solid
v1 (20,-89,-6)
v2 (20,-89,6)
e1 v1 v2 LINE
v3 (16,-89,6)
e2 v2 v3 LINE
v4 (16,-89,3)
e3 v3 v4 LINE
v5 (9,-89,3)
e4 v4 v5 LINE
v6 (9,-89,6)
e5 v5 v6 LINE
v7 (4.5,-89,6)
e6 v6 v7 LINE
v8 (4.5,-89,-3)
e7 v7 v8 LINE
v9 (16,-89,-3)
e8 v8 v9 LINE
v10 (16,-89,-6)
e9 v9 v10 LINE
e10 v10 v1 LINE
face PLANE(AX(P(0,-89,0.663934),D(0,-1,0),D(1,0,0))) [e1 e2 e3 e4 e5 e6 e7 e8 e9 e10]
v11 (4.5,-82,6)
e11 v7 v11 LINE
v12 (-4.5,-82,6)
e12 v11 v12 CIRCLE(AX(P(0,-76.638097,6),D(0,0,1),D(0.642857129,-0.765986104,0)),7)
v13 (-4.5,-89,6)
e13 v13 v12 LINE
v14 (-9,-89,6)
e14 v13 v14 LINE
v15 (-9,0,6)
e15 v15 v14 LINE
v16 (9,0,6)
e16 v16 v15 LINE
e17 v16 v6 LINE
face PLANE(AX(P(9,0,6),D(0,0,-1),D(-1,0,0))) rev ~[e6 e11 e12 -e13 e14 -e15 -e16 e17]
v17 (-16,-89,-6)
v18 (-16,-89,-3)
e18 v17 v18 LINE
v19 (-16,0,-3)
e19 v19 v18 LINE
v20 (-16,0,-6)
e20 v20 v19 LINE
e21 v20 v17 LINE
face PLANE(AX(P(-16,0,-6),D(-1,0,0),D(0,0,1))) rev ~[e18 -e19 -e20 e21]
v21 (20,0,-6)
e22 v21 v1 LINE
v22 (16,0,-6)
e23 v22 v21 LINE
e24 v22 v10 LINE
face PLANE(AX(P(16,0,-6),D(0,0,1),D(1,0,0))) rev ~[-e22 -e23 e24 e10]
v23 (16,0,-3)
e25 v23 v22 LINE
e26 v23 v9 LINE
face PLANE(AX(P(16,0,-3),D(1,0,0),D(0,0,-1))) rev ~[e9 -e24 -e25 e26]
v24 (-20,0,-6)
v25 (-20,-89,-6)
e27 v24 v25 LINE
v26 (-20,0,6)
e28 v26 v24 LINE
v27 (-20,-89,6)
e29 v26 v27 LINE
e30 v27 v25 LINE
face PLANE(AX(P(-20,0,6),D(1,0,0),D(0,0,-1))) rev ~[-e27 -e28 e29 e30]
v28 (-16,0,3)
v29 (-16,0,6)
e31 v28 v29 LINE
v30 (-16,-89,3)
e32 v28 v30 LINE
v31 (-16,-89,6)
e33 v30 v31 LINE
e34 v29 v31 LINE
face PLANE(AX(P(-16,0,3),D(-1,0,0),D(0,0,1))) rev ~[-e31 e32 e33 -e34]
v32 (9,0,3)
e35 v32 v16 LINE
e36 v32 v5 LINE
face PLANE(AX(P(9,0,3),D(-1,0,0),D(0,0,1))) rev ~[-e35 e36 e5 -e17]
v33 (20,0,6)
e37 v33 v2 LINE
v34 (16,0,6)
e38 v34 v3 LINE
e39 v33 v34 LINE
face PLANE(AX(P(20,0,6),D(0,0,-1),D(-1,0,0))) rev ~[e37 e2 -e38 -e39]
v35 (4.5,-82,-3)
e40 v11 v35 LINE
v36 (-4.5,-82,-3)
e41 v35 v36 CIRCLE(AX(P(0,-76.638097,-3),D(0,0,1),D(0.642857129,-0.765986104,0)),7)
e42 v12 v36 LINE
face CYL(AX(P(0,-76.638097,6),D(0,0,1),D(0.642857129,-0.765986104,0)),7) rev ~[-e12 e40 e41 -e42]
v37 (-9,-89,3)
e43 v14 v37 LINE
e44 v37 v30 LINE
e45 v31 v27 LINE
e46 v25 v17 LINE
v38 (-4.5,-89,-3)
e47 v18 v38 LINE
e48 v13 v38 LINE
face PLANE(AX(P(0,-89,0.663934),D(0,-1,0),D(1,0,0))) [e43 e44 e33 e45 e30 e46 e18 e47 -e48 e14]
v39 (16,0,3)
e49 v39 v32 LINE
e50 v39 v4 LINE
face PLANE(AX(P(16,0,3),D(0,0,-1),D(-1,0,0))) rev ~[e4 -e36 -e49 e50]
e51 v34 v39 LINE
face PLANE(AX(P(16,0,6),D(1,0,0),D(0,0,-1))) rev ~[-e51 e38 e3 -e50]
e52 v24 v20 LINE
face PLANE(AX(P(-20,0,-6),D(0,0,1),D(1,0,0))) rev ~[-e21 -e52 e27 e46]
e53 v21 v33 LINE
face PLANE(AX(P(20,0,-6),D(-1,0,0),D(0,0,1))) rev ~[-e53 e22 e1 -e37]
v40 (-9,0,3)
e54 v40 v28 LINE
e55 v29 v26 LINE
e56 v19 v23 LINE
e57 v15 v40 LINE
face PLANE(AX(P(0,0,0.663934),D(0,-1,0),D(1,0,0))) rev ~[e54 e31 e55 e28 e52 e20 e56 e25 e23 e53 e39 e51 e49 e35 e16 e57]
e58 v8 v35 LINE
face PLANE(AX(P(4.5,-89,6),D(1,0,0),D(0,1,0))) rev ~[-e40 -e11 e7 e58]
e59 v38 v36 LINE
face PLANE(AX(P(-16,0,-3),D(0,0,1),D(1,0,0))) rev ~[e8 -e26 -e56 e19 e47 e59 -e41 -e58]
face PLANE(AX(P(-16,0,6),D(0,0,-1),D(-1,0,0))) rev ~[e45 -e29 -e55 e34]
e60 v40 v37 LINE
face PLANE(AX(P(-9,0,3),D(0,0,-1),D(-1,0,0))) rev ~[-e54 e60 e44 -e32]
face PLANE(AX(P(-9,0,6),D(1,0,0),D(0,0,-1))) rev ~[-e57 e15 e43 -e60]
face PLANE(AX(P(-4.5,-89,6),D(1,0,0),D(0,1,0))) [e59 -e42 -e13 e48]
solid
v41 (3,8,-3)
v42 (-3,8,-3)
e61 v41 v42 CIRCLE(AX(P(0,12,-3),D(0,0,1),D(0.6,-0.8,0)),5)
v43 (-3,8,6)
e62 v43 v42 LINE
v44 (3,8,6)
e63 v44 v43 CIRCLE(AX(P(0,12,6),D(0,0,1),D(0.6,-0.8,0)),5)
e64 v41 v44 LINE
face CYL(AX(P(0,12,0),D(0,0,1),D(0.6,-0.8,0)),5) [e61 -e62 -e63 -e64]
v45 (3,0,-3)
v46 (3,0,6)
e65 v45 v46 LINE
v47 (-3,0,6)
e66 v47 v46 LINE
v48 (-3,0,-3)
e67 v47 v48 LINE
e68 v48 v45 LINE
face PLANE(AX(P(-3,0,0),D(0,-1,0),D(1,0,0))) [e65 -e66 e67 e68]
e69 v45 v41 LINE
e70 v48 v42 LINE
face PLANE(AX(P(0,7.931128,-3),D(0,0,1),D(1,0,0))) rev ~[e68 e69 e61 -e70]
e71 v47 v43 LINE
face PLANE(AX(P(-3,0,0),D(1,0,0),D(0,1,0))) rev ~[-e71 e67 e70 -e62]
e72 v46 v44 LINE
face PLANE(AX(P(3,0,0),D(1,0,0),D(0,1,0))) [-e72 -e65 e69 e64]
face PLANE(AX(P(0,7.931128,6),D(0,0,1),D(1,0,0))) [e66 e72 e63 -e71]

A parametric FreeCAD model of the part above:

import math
import FreeCAD as App
import Part
import Sketcher
from FreeCAD import Vector

doc = App.newDocument("Part")
body = doc.addObject("PartDesign::Body", "Body")

# Sketch on XZ plane
sketch1 = body.newObject("Sketcher::SketchObject", "Sketch")
sketch1.AttachmentSupport = (doc.getObject("XZ_Plane"), [""])
sketch1.MapMode = "FlatFace"
sketch1.addGeometry(Part.LineSegment(Vector(-20, 6, 0), Vector(-20, -6, 0)), False)
sketch1.addGeometry(Part.LineSegment(Vector(-20, -6, 0), Vector(-16, -6, 0)), False)
sketch1.addGeometry(Part.LineSegment(Vector(-16, -6, 0), Vector(-16, -3, 0)), False)
sketch1.addGeometry(Part.LineSegment(Vector(-16, -3, 0), Vector(16, -3, 0)), False)
sketch1.addGeometry(Part.LineSegment(Vector(16, -3, 0), Vector(16, -6, 0)), False)
sketch1.addGeometry(Part.LineSegment(Vector(16, -6, 0), Vector(20, -6, 0)), False)
sketch1.addGeometry(Part.LineSegment(Vector(20, -6, 0), Vector(20, 6, 0)), False)
sketch1.addGeometry(Part.LineSegment(Vector(20, 6, 0), Vector(16, 6, 0)), False)
sketch1.addGeometry(Part.LineSegment(Vector(16, 6, 0), Vector(16, 3, 0)), False)
sketch1.addGeometry(Part.LineSegment(Vector(16, 3, 0), Vector(9, 3, 0)), False)
sketch1.addGeometry(Part.LineSegment(Vector(9, 3, 0), Vector(9, 6, 0)), False)
sketch1.addGeometry(Part.LineSegment(Vector(9, 6, 0), Vector(-9, 6, 0)), False)
sketch1.addGeometry(Part.LineSegment(Vector(-9, 6, 0), Vector(-9, 3, 0)), False)
sketch1.addGeometry(Part.LineSegment(Vector(-9, 3, 0), Vector(-16, 3, 0)), False)
sketch1.addGeometry(Part.LineSegment(Vector(-16, 3, 0), Vector(-16, 6, 0)), False)
sketch1.addGeometry(Part.LineSegment(Vector(-16, 6, 0), Vector(-20, 6, 0)), False)
sketch1.addConstraint(Sketcher.Constraint("Coincident", 0, 2, 1, 1))
sketch1.addConstraint(Sketcher.Constraint("Coincident", 1, 2, 2, 1))
sketch1.addConstraint(Sketcher.Constraint("Coincident", 2, 2, 3, 1))
sketch1.addConstraint(Sketcher.Constraint("Coincident", 3, 2, 4, 1))
sketch1.addConstraint(Sketcher.Constraint("Coincident", 4, 2, 5, 1))
sketch1.addConstraint(Sketcher.Constraint("Coincident", 5, 2, 6, 1))
sketch1.addConstraint(Sketcher.Constraint("Coincident", 6, 2, 7, 1))
sketch1.addConstraint(Sketcher.Constraint("Coincident", 7, 2, 8, 1))
sketch1.addConstraint(Sketcher.Constraint("Coincident", 8, 2, 9, 1))
sketch1.addConstraint(Sketcher.Constraint("Coincident", 9, 2, 10, 1))
sketch1.addConstraint(Sketcher.Constraint("Coincident", 10, 2, 11, 1))
sketch1.addConstraint(Sketcher.Constraint("Coincident", 11, 2, 12, 1))
sketch1.addConstraint(Sketcher.Constraint("Coincident", 12, 2, 13, 1))
sketch1.addConstraint(Sketcher.Constraint("Coincident", 13, 2, 14, 1))
sketch1.addConstraint(Sketcher.Constraint("Coincident", 14, 2, 15, 1))
sketch1.addConstraint(Sketcher.Constraint("Coincident", 15, 2, 0, 1))
sketch1.addConstraint(Sketcher.Constraint("Vertical", 0))
sketch1.addConstraint(Sketcher.Constraint("Horizontal", 1))
sketch1.addConstraint(Sketcher.Constraint("Vertical", 2))
sketch1.addConstraint(Sketcher.Constraint("Horizontal", 3))
sketch1.addConstraint(Sketcher.Constraint("Vertical", 4))
sketch1.addConstraint(Sketcher.Constraint("Horizontal", 5))
sketch1.addConstraint(Sketcher.Constraint("Vertical", 6))
sketch1.addConstraint(Sketcher.Constraint("Horizontal", 7))
sketch1.addConstraint(Sketcher.Constraint("Vertical", 8))
sketch1.addConstraint(Sketcher.Constraint("Horizontal", 9))
sketch1.addConstraint(Sketcher.Constraint("Vertical", 10))
sketch1.addConstraint(Sketcher.Constraint("Horizontal", 11))
sketch1.addConstraint(Sketcher.Constraint("Vertical", 12))
sketch1.addConstraint(Sketcher.Constraint("Horizontal", 13))
sketch1.addConstraint(Sketcher.Constraint("Vertical", 14))
sketch1.addConstraint(Sketcher.Constraint("Horizontal", 15))
sketch1.addConstraint(Sketcher.Constraint("Symmetric", 0, 2, 6, 2, -1, 1))
sketch1.addConstraint(Sketcher.Constraint("Symmetric", 2, 2, 8, 2, -1, 1))
sketch1.addConstraint(Sketcher.Constraint("Symmetric", 3, 2, 13, 2, -1, 1))
sketch1.addConstraint(Sketcher.Constraint("Symmetric", 1, 2, 4, 2, -2))
sketch1.addConstraint(Sketcher.Constraint("Horizontal", 7, 2, 10, 2))
sketch1.addConstraint(Sketcher.Constraint("Horizontal", 11, 2, 14, 2))
sketch1.addConstraint(Sketcher.Constraint("Equal", 9, 13))
sketch1.addConstraint(Sketcher.Constraint("DistanceX", 1, 1, 1, 2, 4.0))
sketch1.addConstraint(Sketcher.Constraint("DistanceX", 3, 1, 3, 2, 32.0))
sketch1.addConstraint(Sketcher.Constraint("DistanceX", 9, 2, 9, 1, 7.0))
sketch1.addConstraint(Sketcher.Constraint("DistanceY", 0, 2, 0, 1, 12.0))
sketch1.addConstraint(Sketcher.Constraint("DistanceY", 2, 1, 2, 2, 3.0))
pad1 = body.newObject("PartDesign::Pad", "Pad")
pad1.Profile = sketch1
pad1.Length = 89

# Sketch on XY plane
sketch2 = body.newObject("Sketcher::SketchObject", "Sketch001")
sketch2.AttachmentSupport = (doc.getObject("XY_Plane"), [""])
sketch2.MapMode = "FlatFace"
sketch2.AttachmentOffset = App.Placement(Vector(0, 0, 6), App.Rotation())
sketch2.addGeometry(Part.LineSegment(Vector(-4, -89, 0), Vector(4, -89, 0)), False)
sketch2.addGeometry(Part.LineSegment(Vector(4, -89, 0), Vector(4, -82, 0)), False)
sketch2.addGeometry(Part.ArcOfCircle(Part.Circle(Vector(0, -77, 0), Vector(0, 0, 1), 7), math.radians(-50), math.radians(230)), False)
sketch2.addGeometry(Part.LineSegment(Vector(-4, -82, 0), Vector(-4, -89, 0)), False)
sketch2.addConstraint(Sketcher.Constraint("Coincident", 0, 2, 1, 1))
sketch2.addConstraint(Sketcher.Constraint("Coincident", 1, 2, 2, 1))
sketch2.addConstraint(Sketcher.Constraint("Coincident", 2, 2, 3, 1))
sketch2.addConstraint(Sketcher.Constraint("Coincident", 3, 2, 0, 1))
sketch2.addConstraint(Sketcher.Constraint("Horizontal", 0))
sketch2.addConstraint(Sketcher.Constraint("Vertical", 1))
sketch2.addConstraint(Sketcher.Constraint("Vertical", 3))
sketch2.addConstraint(Sketcher.Constraint("Symmetric", 1, 2, 2, 2, -2))
sketch2.addConstraint(Sketcher.Constraint("Radius", 2, 7.0))
sketch2.addConstraint(Sketcher.Constraint("DistanceX", 0, 1, 0, 2, 9.0))
sketch2.addConstraint(Sketcher.Constraint("DistanceY", 1, 1, 1, 2, 7.0))
sketch2.addConstraint(Sketcher.Constraint("DistanceY", 0, 2, -1, 1, 89.0))
pocket1 = body.newObject("PartDesign::Pocket", "Pocket")
pocket1.Profile = sketch2
pocket1.Type = "ThroughAll"
body2 = doc.addObject("PartDesign::Body", "Body001")

# Sketch on XY plane
sketch3 = body2.newObject("Sketcher::SketchObject", "Sketch002")
sketch3.AttachmentSupport = (doc.getObject("XY_Plane001"), [""])
sketch3.MapMode = "FlatFace"
sketch3.addGeometry(Part.LineSegment(Vector(-3, 0, 0), Vector(3, 0, 0)), False)
sketch3.addGeometry(Part.LineSegment(Vector(3, 0, 0), Vector(3, 8, 0)), False)
sketch3.addGeometry(Part.ArcOfCircle(Part.Circle(Vector(0, 12, 0), Vector(0, 0, 1), 5), math.radians(-53), math.radians(233)), False)
sketch3.addGeometry(Part.LineSegment(Vector(-3, 8, 0), Vector(-3, 0, 0)), False)
sketch3.addConstraint(Sketcher.Constraint("Coincident", 0, 2, 1, 1))
sketch3.addConstraint(Sketcher.Constraint("Coincident", 1, 2, 2, 1))
sketch3.addConstraint(Sketcher.Constraint("Coincident", 2, 2, 3, 1))
sketch3.addConstraint(Sketcher.Constraint("Coincident", 3, 2, 0, 1))
sketch3.addConstraint(Sketcher.Constraint("Horizontal", 0))
sketch3.addConstraint(Sketcher.Constraint("Vertical", 1))
sketch3.addConstraint(Sketcher.Constraint("Vertical", 3))
sketch3.addConstraint(Sketcher.Constraint("Symmetric", 0, 2, 3, 2, -1, 1))
sketch3.addConstraint(Sketcher.Constraint("PointOnObject", 2, 3, -2))
sketch3.addConstraint(Sketcher.Constraint("Radius", 2, 5.0))
sketch3.addConstraint(Sketcher.Constraint("DistanceX", 0, 1, 0, 2, 6.0))
sketch3.addConstraint(Sketcher.Constraint("DistanceY", 1, 1, 1, 2, 8.0))
pad2 = body2.newObject("PartDesign::Pad", "Pad001")
pad2.Profile = sketch3
pad2.Type = "TwoLengths"
pad2.Length = 6
pad2.Length2 = 3

doc.recompute()
